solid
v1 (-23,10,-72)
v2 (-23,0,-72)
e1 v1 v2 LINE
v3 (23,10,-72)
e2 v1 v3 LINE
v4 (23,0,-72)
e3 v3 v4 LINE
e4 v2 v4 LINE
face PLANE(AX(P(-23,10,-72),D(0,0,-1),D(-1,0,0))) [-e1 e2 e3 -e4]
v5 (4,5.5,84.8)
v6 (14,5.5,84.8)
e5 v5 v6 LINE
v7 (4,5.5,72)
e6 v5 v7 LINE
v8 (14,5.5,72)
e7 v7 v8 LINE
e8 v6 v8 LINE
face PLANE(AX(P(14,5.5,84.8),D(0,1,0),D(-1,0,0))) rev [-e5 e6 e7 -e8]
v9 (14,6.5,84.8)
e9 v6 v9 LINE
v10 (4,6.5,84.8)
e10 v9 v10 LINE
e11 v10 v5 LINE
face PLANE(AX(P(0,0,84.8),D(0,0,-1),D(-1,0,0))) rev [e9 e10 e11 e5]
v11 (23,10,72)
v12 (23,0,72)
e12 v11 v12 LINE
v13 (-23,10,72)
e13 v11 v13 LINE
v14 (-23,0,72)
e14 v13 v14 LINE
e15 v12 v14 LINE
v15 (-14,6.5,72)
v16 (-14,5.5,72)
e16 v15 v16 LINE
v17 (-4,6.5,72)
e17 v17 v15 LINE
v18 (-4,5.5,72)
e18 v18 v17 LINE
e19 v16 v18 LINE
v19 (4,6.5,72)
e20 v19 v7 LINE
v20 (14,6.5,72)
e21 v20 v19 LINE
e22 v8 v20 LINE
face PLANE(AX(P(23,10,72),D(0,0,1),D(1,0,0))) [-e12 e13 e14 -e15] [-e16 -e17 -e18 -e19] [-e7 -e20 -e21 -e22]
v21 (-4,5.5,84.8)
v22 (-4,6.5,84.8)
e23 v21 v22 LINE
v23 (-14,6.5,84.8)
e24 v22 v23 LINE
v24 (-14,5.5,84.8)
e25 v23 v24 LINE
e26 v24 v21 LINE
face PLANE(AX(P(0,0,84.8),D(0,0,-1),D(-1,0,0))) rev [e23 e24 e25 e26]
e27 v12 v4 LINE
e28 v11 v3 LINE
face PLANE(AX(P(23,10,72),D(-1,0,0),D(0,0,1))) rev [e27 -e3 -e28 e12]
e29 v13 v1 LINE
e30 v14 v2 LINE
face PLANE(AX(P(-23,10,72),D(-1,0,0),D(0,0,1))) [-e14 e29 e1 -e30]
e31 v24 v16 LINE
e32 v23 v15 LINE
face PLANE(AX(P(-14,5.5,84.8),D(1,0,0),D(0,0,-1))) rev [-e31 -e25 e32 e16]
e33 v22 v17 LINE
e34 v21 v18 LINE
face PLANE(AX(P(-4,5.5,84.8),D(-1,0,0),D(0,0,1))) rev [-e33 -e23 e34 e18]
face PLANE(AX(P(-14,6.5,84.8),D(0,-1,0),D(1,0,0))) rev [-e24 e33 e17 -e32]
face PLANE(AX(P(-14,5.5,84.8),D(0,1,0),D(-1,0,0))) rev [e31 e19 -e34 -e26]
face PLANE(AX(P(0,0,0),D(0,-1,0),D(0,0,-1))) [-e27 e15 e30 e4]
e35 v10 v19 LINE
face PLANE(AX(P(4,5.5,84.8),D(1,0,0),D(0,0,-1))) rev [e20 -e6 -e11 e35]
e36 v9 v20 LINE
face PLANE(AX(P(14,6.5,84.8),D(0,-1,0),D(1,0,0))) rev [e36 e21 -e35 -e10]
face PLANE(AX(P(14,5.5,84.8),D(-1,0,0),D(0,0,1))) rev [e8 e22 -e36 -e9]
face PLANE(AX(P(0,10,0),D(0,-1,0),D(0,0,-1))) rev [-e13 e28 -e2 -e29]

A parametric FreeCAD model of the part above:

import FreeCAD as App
import Part
import Sketcher

V = App.Vector
Q = App.Units.Quantity

doc = App.newDocument("Part")
body = doc.addObject("PartDesign::Body", "Body")

# Sketch on XZ plane
sketch1 = doc.addObject("Sketcher::SketchObject", "Sketch")
body.addObject(sketch1)
sketch1.AttachmentSupport = (doc.XZ_Plane, [""])
sketch1.MapMode = "FlatFace"
sketch1.addGeometry([
    Part.LineSegment(V(-23, -72, 0), V(-23, 72, 0)),
    Part.LineSegment(V(-23, 72, 0), V(23, 72, 0)),
    Part.LineSegment(V(23, 72, 0), V(23, -72, 0)),
    Part.LineSegment(V(23, -72, 0), V(-23, -72, 0)),
], False)
sketch1.addConstraint([
    Sketcher.Constraint("Coincident", 0, 2, 1, 1),
    Sketcher.Constraint("Coincident", 1, 2, 2, 1),
    Sketcher.Constraint("Coincident", 2, 2, 3, 1),
    Sketcher.Constraint("Coincident", 3, 2, 0, 1),
    Sketcher.Constraint("Vertical", 0),
    Sketcher.Constraint("Horizontal", 1),
    Sketcher.Constraint("Vertical", 2),
    Sketcher.Constraint("Horizontal", 3),
    Sketcher.Constraint("Symmetric", 0, 2, 2, 2, -1, 1),
    Sketcher.Constraint("DistanceX", 1, 1, 1, 2, Q("46 mm")),
    Sketcher.Constraint("DistanceY", 0, 1, 0, 2, Q("144 mm")),
])
pad1 = doc.addObject("PartDesign::Pad", "Pad")
body.addObject(pad1)
pad1.Profile = sketch1
pad1.Length = 10
pad1.Reversed = True

# Sketch on XY plane
sketch2 = doc.addObject("Sketcher::SketchObject", "Sketch001")
body.addObject(sketch2)
sketch2.AttachmentSupport = (doc.XY_Plane, [""])
sketch2.MapMode = "FlatFace"
sketch2.AttachmentOffset = App.Placement(V(0, 0, 72), App.Rotation())
sketch2.addGeometry([
    Part.LineSegment(V(-14, 6.5, 0), V(-14, 5.5, 0)),  # 0
    Part.LineSegment(V(-14, 5.5, 0), V(-4, 5.5, 0)),  # 1
    Part.LineSegment(V(-4, 5.5, 0), V(-4, 6.5, 0)),  # 2
    Part.LineSegment(V(-4, 6.5, 0), V(-14, 6.5, 0)),  # 3
    Part.LineSegment(V(4, 6.5, 0), V(4, 5.5, 0)),  # 4
    Part.LineSegment(V(4, 5.5, 0), V(14, 5.5, 0)),  # 5
    Part.LineSegment(V(14, 5.5, 0), V(14, 6.5, 0)),  # 6
    Part.LineSegment(V(14, 6.5, 0), V(4, 6.5, 0)),  # 7
], False)
sketch2.addConstraint([
    Sketcher.Constraint("Coincident", 0, 2, 1, 1),
    Sketcher.Constraint("Coincident", 1, 2, 2, 1),
    Sketcher.Constraint("Coincident", 2, 2, 3, 1),
    Sketcher.Constraint("Coincident", 3, 2, 0, 1),
    Sketcher.Constraint("Coincident", 4, 2, 5, 1),
    Sketcher.Constraint("Coincident", 5, 2, 6, 1),
    Sketcher.Constraint("Coincident", 6, 2, 7, 1),
    Sketcher.Constraint("Coincident", 7, 2, 4, 1),
    Sketcher.Constraint("Vertical", 0),
    Sketcher.Constraint("Horizontal", 1),
    Sketcher.Constraint("Vertical", 2),
    Sketcher.Constraint("Horizontal", 3),
    Sketcher.Constraint("Vertical", 4),
    Sketcher.Constraint("Horizontal", 5),
    Sketcher.Constraint("Vertical", 6),
    Sketcher.Constraint("Horizontal", 7),
    Sketcher.Constraint("Symmetric", 1, 2, 4, 2, -2),
    Sketcher.Constraint("Symmetric", 3, 2, 6, 2, -2),
    Sketcher.Constraint("DistanceX", 1, 1, 1, 2, Q("10 mm")),
    Sketcher.Constraint("DistanceY", 0, 2, 0, 1, Q("1 mm")),
    Sketcher.Constraint("DistanceX", 0, 2, -1, 1, Q("14 mm")),
    Sketcher.Constraint("DistanceY", -1, 1, 0, 2, Q("5.5 mm")),
])
pad2 = doc.addObject("PartDesign::Pad", "Pad001")
body.addObject(pad2)
pad2.Profile = sketch2
pad2.Length = 12.8

doc.recompute()
